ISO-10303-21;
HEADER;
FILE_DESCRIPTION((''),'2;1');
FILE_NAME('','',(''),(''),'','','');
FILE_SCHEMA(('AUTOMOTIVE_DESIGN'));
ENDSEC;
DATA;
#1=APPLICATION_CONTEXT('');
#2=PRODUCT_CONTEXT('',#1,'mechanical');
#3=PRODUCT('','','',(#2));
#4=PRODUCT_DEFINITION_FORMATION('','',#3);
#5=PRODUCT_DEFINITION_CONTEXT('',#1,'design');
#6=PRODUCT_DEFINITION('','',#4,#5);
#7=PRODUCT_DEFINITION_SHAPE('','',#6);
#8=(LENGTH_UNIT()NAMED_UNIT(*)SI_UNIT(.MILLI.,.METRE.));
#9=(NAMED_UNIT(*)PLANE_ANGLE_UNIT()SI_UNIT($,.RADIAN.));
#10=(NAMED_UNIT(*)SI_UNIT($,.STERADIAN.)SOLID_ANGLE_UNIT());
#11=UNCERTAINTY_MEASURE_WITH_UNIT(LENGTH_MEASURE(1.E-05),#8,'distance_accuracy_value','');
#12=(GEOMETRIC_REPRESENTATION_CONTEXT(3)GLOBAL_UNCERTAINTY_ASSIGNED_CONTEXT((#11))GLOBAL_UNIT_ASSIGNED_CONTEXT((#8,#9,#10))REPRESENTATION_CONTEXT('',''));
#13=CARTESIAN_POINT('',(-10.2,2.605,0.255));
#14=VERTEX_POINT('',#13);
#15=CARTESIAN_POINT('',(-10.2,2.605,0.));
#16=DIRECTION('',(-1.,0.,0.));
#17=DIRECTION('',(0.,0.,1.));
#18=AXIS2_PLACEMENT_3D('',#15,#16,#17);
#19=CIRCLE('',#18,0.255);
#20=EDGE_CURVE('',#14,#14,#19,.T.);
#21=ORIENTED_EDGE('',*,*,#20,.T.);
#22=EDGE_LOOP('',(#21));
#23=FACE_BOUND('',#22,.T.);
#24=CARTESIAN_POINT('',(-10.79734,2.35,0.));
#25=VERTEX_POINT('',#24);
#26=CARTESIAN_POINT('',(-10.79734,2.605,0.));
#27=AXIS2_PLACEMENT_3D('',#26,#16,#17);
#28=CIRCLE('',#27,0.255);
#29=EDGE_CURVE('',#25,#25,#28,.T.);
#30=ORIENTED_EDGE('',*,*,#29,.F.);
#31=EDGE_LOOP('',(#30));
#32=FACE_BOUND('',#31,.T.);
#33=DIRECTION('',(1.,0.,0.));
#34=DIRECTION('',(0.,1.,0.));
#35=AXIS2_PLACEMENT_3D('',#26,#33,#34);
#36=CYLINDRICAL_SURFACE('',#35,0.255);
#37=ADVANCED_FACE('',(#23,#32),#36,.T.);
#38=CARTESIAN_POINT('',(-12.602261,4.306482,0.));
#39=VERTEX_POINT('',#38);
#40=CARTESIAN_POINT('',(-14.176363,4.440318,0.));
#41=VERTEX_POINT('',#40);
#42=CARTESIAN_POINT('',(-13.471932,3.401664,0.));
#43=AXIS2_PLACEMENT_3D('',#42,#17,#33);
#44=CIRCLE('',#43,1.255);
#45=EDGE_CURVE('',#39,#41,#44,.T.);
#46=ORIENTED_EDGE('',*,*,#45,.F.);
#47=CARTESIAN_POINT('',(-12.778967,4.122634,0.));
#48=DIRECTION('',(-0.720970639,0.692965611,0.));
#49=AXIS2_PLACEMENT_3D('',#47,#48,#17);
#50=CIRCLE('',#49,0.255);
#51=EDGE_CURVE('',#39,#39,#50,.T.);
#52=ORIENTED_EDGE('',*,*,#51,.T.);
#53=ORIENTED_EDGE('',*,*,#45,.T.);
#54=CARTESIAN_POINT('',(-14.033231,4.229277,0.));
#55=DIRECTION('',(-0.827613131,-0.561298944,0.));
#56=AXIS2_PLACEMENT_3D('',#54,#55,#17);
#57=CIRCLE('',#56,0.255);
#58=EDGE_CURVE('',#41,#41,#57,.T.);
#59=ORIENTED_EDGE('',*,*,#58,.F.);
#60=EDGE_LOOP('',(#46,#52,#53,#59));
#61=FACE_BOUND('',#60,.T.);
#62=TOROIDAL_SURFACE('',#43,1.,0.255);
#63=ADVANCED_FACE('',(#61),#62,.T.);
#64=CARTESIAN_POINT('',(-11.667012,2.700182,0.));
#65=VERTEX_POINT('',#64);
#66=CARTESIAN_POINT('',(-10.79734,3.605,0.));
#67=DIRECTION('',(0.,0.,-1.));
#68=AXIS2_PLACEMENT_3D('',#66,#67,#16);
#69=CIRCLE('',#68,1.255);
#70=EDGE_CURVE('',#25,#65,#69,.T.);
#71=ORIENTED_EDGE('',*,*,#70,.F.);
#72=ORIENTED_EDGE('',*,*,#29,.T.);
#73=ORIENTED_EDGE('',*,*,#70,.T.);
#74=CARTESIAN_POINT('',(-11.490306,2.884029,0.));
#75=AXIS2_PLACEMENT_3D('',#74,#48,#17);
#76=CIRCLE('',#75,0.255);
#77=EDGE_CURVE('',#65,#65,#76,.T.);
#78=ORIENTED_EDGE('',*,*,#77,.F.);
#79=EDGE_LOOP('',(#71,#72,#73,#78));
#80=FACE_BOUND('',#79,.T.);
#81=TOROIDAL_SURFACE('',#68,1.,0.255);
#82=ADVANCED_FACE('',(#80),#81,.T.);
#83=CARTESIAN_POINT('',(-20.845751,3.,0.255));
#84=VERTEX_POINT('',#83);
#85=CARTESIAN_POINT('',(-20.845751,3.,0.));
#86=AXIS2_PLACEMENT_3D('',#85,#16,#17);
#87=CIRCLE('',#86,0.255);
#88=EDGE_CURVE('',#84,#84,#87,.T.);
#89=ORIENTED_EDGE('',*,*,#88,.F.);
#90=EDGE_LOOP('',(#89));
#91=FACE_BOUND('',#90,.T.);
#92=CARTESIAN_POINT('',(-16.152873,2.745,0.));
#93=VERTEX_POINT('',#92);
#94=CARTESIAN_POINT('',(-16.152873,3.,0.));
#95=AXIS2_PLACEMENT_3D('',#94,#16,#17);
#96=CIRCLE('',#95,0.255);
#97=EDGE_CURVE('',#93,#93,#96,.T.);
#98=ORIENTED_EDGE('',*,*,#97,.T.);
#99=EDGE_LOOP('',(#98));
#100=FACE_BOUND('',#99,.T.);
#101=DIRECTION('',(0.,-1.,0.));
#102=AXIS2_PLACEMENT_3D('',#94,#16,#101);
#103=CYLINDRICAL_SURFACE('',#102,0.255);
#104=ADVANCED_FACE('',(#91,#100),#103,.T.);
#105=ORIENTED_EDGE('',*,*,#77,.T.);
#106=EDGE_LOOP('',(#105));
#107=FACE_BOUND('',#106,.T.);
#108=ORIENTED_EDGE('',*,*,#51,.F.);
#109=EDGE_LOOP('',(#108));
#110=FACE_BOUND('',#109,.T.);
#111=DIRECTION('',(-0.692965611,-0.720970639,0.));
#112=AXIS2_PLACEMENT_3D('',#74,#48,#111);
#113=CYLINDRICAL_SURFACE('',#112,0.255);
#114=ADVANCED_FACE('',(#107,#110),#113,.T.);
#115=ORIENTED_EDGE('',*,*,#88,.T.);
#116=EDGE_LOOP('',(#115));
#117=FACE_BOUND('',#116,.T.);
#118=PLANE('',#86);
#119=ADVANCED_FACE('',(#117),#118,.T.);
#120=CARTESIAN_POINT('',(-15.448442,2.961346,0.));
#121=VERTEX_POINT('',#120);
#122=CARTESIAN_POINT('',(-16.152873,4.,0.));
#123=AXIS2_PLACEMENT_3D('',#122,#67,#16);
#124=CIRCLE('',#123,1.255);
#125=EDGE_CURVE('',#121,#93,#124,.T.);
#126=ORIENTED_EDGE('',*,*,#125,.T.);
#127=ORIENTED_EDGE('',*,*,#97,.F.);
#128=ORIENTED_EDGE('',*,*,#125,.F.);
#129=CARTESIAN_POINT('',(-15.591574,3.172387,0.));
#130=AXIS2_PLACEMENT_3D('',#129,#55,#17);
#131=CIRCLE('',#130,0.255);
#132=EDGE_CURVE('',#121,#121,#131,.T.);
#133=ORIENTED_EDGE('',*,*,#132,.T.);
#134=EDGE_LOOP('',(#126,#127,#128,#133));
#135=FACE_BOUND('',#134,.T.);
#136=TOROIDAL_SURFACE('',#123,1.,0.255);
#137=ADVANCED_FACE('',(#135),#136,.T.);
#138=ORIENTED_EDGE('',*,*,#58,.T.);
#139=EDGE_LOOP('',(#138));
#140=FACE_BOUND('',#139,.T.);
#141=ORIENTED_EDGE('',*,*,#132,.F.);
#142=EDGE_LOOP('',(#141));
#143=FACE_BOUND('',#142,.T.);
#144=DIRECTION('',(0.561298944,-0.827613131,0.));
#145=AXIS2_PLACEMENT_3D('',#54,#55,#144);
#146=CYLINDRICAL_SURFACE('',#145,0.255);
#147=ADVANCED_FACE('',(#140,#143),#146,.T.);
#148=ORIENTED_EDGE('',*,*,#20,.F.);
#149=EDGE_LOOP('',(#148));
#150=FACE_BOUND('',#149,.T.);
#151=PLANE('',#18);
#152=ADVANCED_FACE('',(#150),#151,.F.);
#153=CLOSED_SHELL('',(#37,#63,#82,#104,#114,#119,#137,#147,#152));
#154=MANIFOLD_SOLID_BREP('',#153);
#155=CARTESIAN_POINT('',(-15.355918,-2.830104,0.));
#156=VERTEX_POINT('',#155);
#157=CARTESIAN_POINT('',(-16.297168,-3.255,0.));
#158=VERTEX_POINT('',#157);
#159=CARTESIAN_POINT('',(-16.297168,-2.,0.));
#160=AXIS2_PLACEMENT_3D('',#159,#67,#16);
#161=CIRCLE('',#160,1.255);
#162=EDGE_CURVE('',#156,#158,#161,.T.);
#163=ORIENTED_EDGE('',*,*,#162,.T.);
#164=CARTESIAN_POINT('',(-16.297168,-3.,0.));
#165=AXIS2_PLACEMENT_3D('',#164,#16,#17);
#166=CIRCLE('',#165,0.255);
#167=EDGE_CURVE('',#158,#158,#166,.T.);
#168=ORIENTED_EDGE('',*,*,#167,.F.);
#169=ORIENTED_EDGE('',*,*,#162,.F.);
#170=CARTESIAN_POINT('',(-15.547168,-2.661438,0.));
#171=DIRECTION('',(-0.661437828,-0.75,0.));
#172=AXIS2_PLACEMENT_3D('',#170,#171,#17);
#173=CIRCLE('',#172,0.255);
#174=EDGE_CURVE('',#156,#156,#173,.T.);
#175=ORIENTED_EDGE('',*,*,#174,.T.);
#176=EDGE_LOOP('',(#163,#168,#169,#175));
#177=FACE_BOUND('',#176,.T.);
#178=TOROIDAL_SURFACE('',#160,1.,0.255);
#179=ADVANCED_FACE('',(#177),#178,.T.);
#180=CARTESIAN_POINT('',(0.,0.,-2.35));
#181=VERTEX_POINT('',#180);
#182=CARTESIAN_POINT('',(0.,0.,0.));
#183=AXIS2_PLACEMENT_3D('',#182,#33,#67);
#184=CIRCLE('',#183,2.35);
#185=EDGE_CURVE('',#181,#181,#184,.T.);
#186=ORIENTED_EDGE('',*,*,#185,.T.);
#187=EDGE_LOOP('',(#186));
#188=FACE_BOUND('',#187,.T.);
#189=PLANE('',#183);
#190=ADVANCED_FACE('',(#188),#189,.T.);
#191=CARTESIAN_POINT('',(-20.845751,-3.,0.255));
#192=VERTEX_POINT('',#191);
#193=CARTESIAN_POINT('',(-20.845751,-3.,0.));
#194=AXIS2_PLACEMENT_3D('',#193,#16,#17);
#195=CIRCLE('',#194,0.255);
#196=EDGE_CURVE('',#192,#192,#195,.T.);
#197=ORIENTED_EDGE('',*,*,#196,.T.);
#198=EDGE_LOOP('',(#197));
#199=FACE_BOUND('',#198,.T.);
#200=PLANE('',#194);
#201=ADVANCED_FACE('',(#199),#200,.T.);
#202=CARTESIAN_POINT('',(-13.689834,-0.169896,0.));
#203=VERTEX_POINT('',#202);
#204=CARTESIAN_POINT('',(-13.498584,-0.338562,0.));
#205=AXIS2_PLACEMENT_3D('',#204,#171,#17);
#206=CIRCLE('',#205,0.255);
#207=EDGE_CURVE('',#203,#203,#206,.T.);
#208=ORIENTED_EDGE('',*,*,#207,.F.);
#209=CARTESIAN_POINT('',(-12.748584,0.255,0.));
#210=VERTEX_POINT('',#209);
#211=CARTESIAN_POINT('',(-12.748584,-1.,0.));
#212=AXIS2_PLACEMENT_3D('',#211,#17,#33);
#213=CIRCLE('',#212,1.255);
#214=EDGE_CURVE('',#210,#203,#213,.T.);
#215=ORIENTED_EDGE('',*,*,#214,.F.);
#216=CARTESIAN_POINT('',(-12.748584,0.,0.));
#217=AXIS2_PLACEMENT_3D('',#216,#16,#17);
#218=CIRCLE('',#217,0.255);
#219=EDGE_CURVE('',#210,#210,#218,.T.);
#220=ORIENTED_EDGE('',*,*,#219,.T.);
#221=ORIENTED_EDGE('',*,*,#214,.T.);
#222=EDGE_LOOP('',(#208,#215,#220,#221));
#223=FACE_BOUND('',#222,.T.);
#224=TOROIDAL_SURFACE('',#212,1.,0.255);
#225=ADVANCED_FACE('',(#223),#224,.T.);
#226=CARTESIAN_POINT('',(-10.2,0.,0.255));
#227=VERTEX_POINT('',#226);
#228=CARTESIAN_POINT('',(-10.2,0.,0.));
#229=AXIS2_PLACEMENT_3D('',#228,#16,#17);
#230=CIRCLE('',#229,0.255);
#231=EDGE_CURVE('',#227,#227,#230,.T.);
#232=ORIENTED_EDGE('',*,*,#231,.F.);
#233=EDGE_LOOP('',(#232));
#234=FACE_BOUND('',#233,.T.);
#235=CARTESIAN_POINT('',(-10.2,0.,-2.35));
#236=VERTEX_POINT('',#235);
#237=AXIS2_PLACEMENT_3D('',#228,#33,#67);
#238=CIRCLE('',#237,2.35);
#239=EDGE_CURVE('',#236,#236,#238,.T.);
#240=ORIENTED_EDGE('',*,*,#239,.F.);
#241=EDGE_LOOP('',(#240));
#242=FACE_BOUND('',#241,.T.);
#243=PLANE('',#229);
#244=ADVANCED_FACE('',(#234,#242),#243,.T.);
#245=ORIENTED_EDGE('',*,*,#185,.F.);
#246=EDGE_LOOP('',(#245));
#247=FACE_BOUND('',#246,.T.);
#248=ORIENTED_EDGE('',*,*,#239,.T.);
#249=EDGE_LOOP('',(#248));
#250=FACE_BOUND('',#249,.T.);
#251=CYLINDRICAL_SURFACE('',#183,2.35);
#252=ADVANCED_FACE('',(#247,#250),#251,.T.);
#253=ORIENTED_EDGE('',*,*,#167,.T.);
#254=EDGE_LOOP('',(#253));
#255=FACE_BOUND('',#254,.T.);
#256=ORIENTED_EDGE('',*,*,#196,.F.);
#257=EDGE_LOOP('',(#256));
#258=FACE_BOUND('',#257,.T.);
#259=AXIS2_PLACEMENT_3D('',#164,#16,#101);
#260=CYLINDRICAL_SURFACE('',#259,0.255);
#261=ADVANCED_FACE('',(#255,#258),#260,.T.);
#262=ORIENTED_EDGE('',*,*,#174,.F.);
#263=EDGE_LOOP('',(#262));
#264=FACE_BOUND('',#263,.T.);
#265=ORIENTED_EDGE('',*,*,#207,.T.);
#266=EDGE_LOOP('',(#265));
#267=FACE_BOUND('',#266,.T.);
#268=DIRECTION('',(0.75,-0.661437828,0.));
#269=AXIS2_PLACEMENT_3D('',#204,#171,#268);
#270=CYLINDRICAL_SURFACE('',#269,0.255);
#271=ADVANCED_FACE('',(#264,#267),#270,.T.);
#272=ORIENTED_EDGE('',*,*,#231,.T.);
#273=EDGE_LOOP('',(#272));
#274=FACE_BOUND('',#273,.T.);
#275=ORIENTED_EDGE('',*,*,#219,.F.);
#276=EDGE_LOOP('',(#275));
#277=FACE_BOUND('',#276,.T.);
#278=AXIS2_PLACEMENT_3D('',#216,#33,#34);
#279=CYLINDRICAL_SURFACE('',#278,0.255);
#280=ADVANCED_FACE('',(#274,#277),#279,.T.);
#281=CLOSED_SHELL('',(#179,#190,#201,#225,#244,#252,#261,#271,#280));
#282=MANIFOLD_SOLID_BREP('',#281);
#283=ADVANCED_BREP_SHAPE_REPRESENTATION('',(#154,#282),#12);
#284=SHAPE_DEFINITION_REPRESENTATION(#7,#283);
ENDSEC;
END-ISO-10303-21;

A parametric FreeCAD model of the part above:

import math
import FreeCAD as App
import Part
import Sketcher

doc = App.newDocument("Part")
body = doc.addObject("PartDesign::Body", "Body")

# Sketch on XY plane
sketch1 = body.newObject("Sketcher::SketchObject", "Sketch")
sketch1.AttachmentSupport = (doc.getObject("XY_Plane"), [""])
sketch1.MapMode = "FlatFace"
sketch1.addGeometry([
    Part.LineSegment(App.Vector(-10.2, 2.4, 0), App.Vector(-10.2, 0, 0)),
    Part.LineSegment(App.Vector(-10.2, 0, 0), App.Vector(0, 0, 0)),
    Part.LineSegment(App.Vector(0, 0, 0), App.Vector(0, 2.4, 0)),
    Part.LineSegment(App.Vector(0, 2.4, 0), App.Vector(-10.2, 2.4, 0)),
], False)
sketch1.addConstraint([
    Sketcher.Constraint("Coincident", 0, 2, 1, 1),
    Sketcher.Constraint("Coincident", 1, 2, 2, 1),
    Sketcher.Constraint("Coincident", 2, 2, 3, 1),
    Sketcher.Constraint("Coincident", 3, 2, 0, 1),
    Sketcher.Constraint("Vertical", 0),
    Sketcher.Constraint("Horizontal", 1),
    Sketcher.Constraint("Vertical", 2),
    Sketcher.Constraint("Horizontal", 3),
    Sketcher.Constraint("Coincident", 1, 2, -1, 1),
    Sketcher.Constraint("DistanceX", 1, 1, 1, 2, 10.2),
    Sketcher.Constraint("DistanceY", 0, 2, 0, 1, 2.35),
])
revolution = body.newObject("PartDesign::Revolution", "Revolution")
revolution.Profile = sketch1
revolution.ReferenceAxis = (sketch1, ["H_Axis"])
revolution.Angle = 360

# Sketch on YZ plane
sketch2 = body.newObject("Sketcher::SketchObject", "Sketch001")
sketch2.AttachmentSupport = (doc.getObject("YZ_Plane"), [""])
sketch2.MapMode = "FlatFace"
sketch2.AttachmentOffset = App.Placement(App.Vector(0, 0, -10.2), App.Rotation())
sketch2.addGeometry(Part.Circle(App.Vector(0, 0, 0), App.Vector(0, 0, 1), 0.26), False)
sketch2.addConstraint([
    Sketcher.Constraint("Coincident", 0, 3, -1, 1),
    Sketcher.Constraint("Diameter", 0, 0.51),
])

# Sketch on XY plane
sketch3 = body.newObject("Sketcher::SketchObject", "Sketch002")
sketch3.AttachmentSupport = (doc.getObject("XY_Plane"), [""])
sketch3.MapMode = "FlatFace"
sketch3.addGeometry([
    Part.LineSegment(App.Vector(-10.2, 0, 0), App.Vector(-12.7, 0, 0)),  # 0
    Part.ArcOfCircle(Part.Circle(App.Vector(-12.7, -1, 0), App.Vector(0, 0, 1), 1), math.radians(90), math.radians(139)),  # 1
    Part.LineSegment(App.Vector(-13.5, -0.3, 0), App.Vector(-15.5, -2.7, 0)),  # 2
    Part.ArcOfCircle(Part.Circle(App.Vector(-16.3, -2, 0), App.Vector(0, 0, 1), 1), math.radians(-90), math.radians(-41)),  # 3
    Part.LineSegment(App.Vector(-16.3, -3, 0), App.Vector(-20.8, -3, 0)),  # 4
], False)
sketch3.addConstraint([
    Sketcher.Constraint("Tangent", 0, 2, 1, 1),
    Sketcher.Constraint("Tangent", 1, 2, 2, 1),
    Sketcher.Constraint("Tangent", 2, 2, 3, 2),
    Sketcher.Constraint("Tangent", 3, 1, 4, 1),
    Sketcher.Constraint("Horizontal", 0),
    Sketcher.Constraint("Horizontal", 4),
    Sketcher.Constraint("Equal", 1, 3),
    Sketcher.Constraint("PointOnObject", 0, 1, -1),
    Sketcher.Constraint("Radius", 1, 1.0),
    Sketcher.Constraint("DistanceY", 3, 3, -1, 1, 2.0),
    Sketcher.Constraint("DistanceX", 0, 1, -1, 1, 10.2),
    Sketcher.Constraint("DistanceX", 1, 2, 0, 2, 0.75),
    Sketcher.Constraint("DistanceX", 0, 2, 0, 1, 2.548584),
    Sketcher.Constraint("DistanceX", 4, 2, 4, 1, 4.548584),
])
doc.recompute()

additivepipe = body.newObject("PartDesign::AdditivePipe", "AdditivePipe")
additivepipe.Profile = sketch2
additivepipe.Spine = (sketch3, ["Edge1", "Edge2", "Edge3", "Edge4", "Edge5"])
body2 = doc.addObject("PartDesign::Body", "Body001")

# Sketch on YZ plane
sketch4 = body2.newObject("Sketcher::SketchObject", "Sketch003")
sketch4.AttachmentSupport = (doc.getObject("YZ_Plane001"), [""])
sketch4.MapMode = "FlatFace"
sketch4.AttachmentOffset = App.Placement(App.Vector(0, 0, -10.2), App.Rotation())
sketch4.addGeometry(Part.Circle(App.Vector(2.6, 0, 0), App.Vector(0, 0, 1), 0.26), False)
sketch4.addConstraint([
    Sketcher.Constraint("PointOnObject", 0, 3, -1),
    Sketcher.Constraint("Diameter", 0, 0.51),
    Sketcher.Constraint("DistanceX", -1, 1, 0, 3, 2.605),
])

# Sketch on XY plane
sketch5 = body2.newObject("Sketcher::SketchObject", "Sketch004")
sketch5.AttachmentSupport = (doc.getObject("XY_Plane001"), [""])
sketch5.MapMode = "FlatFace"
sketch5.addGeometry([
    Part.LineSegment(App.Vector(-20.8, 3, 0), App.Vector(-16.2, 3, 0)),  # 0
    Part.ArcOfCircle(Part.Circle(App.Vector(-16.2, 4, 0), App.Vector(0, 0, 1), 1), math.radians(-90), math.radians(-56)),  # 1
    Part.LineSegment(App.Vector(-15.6, 3.2, 0), App.Vector(-14, 4.2, 0)),  # 2
    Part.ArcOfCircle(Part.Circle(App.Vector(-13.5, 3.4, 0), App.Vector(0, 0, 1), 1), math.radians(46), math.radians(124)),  # 3
    Part.LineSegment(App.Vector(-12.8, 4.1, 0), App.Vector(-11.5, 2.9, 0)),  # 4
    Part.ArcOfCircle(Part.Circle(App.Vector(-10.8, 3.6, 0), App.Vector(0, 0, 1), 1), math.radians(-134), math.radians(-90)),  # 5
    Part.LineSegment(App.Vector(-10.8, 2.6, 0), App.Vector(-10.2, 2.6, 0)),  # 6
], False)
sketch5.addConstraint([
    Sketcher.Constraint("Tangent", 0, 2, 1, 1),
    Sketcher.Constraint("Tangent", 1, 2, 2, 1),
    Sketcher.Constraint("Tangent", 2, 2, 3, 2),
    Sketcher.Constraint("Tangent", 3, 1, 4, 1),
    Sketcher.Constraint("Tangent", 4, 2, 5, 1),
    Sketcher.Constraint("Tangent", 5, 2, 6, 1),
    Sketcher.Constraint("Horizontal", 0),
    Sketcher.Constraint("Horizontal", 6),
    Sketcher.Constraint("Equal", 1, 3),
    Sketcher.Constraint("Equal", 3, 5),
    Sketcher.Constraint("Radius", 1, 1.0),
    Sketcher.Constraint("DistanceY", -1, 1, 1, 3, 4.0),
    Sketcher.Constraint("DistanceX", 6, 2, -1, 1, 10.2),
    Sketcher.Constraint("DistanceY", -1, 1, 5, 3, 3.605),
    Sketcher.Constraint("DistanceX", 0, 1, 0, 2, 4.692879),
    Sketcher.Constraint("DistanceX", 6, 1, 6, 2, 0.59734),
    Sketcher.Constraint("DistanceX", 0, 2, 1, 2, 0.561299),
    Sketcher.Constraint("DistanceX", 0, 1, -1, 1, 20.845751),
    Sketcher.Constraint("DistanceX", 2, 2, -1, 1, 14.033231),
])
doc.recompute()

additivepipe2 = body2.newObject("PartDesign::AdditivePipe", "AdditivePipe001")
additivepipe2.Profile = sketch4
additivepipe2.Spine = (sketch5, ["Edge1", "Edge2", "Edge3", "Edge4", "Edge5", "Edge6", "Edge7"])

doc.recompute()
